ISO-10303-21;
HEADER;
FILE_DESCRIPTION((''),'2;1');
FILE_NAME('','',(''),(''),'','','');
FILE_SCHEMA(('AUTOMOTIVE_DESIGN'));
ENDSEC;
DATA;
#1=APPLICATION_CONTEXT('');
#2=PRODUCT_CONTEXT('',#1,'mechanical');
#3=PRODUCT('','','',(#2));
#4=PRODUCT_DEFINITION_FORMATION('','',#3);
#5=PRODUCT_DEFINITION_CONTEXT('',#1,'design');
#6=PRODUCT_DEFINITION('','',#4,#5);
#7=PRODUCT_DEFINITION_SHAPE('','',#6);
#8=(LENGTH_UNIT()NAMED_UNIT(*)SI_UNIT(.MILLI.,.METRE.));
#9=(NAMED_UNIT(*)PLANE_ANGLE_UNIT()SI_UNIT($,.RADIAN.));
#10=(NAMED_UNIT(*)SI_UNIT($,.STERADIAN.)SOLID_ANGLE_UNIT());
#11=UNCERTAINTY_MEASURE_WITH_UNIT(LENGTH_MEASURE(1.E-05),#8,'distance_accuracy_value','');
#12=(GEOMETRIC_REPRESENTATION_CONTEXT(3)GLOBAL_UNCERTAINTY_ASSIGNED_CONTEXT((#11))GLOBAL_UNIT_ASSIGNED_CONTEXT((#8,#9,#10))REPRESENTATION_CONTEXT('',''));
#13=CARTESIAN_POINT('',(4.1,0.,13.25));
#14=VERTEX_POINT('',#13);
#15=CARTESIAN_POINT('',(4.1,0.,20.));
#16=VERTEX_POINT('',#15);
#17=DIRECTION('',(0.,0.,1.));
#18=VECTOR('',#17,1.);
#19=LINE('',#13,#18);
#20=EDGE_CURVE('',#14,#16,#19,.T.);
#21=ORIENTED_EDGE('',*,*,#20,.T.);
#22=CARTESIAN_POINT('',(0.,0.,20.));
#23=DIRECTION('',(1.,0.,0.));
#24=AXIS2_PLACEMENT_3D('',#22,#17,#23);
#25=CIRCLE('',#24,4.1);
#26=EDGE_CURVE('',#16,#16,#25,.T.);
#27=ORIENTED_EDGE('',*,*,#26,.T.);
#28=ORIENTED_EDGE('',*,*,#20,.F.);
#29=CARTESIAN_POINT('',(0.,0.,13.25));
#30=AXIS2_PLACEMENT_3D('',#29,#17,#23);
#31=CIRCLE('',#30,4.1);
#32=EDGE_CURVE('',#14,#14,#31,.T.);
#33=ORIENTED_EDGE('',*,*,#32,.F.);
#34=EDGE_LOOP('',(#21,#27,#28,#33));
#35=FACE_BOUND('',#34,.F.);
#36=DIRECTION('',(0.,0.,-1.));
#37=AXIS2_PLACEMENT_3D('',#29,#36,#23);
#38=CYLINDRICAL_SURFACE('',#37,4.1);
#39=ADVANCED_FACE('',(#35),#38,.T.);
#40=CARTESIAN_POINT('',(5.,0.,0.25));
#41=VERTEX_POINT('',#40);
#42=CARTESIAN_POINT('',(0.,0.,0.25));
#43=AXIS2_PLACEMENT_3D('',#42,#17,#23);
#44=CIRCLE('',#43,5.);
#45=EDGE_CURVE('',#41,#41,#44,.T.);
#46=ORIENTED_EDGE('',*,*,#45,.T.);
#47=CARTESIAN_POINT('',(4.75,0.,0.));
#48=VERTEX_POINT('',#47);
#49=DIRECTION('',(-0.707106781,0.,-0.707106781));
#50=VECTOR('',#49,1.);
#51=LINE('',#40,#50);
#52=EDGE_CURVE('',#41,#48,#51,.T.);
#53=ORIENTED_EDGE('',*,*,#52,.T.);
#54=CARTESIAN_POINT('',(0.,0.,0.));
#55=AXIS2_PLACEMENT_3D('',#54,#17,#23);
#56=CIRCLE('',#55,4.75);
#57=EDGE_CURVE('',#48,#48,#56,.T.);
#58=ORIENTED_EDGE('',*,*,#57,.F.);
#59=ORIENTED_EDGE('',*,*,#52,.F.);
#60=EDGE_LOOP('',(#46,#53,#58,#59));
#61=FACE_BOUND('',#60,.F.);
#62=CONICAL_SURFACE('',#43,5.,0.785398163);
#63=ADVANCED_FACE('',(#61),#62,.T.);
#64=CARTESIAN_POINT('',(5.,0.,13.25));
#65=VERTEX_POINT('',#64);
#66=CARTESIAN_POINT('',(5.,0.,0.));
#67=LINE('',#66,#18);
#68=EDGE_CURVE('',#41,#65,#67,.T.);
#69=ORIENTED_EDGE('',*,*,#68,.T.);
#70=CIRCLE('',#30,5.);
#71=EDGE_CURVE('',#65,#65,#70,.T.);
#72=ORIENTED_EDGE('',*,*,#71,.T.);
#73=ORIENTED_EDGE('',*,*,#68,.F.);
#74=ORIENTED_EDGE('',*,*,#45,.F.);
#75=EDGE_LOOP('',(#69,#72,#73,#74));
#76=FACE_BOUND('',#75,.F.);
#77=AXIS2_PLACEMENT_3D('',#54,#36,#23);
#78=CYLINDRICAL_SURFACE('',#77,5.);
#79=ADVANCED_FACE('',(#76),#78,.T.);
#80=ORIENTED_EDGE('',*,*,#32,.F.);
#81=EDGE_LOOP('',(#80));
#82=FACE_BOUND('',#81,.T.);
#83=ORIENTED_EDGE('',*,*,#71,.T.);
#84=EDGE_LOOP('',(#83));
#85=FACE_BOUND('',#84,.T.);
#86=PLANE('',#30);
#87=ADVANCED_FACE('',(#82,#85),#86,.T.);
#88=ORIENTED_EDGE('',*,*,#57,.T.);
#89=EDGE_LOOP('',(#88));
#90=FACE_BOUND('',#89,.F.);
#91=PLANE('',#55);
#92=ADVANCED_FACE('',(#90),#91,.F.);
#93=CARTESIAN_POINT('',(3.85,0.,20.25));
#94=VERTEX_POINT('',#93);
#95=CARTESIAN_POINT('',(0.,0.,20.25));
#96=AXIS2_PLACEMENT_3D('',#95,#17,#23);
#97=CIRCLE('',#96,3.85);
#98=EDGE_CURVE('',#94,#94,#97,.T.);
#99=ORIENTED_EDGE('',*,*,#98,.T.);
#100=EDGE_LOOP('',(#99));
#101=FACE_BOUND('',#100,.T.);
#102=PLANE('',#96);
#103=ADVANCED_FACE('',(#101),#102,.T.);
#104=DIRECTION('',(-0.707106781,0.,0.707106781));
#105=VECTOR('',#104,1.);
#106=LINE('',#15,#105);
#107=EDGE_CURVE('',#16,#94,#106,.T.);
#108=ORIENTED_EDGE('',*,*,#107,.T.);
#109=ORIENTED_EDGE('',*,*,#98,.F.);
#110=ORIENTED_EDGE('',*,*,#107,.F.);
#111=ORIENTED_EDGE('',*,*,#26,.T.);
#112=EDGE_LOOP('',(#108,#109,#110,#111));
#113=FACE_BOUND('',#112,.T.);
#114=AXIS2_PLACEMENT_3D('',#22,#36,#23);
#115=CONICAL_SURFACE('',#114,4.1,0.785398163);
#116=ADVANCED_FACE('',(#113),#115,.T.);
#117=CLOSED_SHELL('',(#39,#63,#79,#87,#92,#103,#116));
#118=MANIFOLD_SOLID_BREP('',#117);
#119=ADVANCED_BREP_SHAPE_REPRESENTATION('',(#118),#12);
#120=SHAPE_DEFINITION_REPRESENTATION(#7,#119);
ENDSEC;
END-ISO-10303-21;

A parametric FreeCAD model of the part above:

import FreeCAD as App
import Part
import Sketcher

V = App.Vector
Q = App.Units.Quantity


def edges_at(feature, points):
    """Names of the edges that pass closest to the given points."""
    edges = feature.Shape.Edges
    near = lambda p: min(range(len(edges)), key=lambda i: edges[i].distToShape(Part.Vertex(*p))[0])
    return sorted({f"Edge{near(p) + 1}" for p in points})

doc = App.newDocument("Part")
body = doc.addObject("PartDesign::Body", "Body")

# Sketch on XY plane
sketch1 = body.newObject("Sketcher::SketchObject", "Sketch")
sketch1.AttachmentSupport = (doc.getObject("XY_Plane"), [""])
sketch1.MapMode = "FlatFace"
sketch1.addGeometry(Part.Circle(V(0, 0, 0), V(0, 0, 1), 5), False)
sketch1.addConstraint([
    Sketcher.Constraint("Coincident", 0, 3, -1, 1),
    Sketcher.Constraint("Diameter", 0, Q("10 mm")),
])
pad1 = body.newObject("PartDesign::Pad", "Pad")
pad1.Profile = sketch1
pad1.Length = 13.25

# Sketch on XY plane
sketch2 = body.newObject("Sketcher::SketchObject", "Sketch001")
sketch2.AttachmentSupport = (doc.getObject("XY_Plane"), [""])
sketch2.MapMode = "FlatFace"
sketch2.AttachmentOffset = App.Placement(V(0, 0, 13.25), App.Rotation())
sketch2.addGeometry(Part.Circle(V(0, 0, 0), V(0, 0, 1), 4.1), False)
sketch2.addConstraint([
    Sketcher.Constraint("Coincident", 0, 3, -1, 1),
    Sketcher.Constraint("Diameter", 0, Q("8.2 mm")),
])
pad2 = body.newObject("PartDesign::Pad", "Pad001")
pad2.Profile = sketch2
pad2.Length = 7
doc.recompute()

chamfer = body.newObject("PartDesign::Chamfer", "Chamfer")
chamfer.Base = (pad2, edges_at(pad2, [(-4.1, 0, 20.25)]))
chamfer.Size = 0.25
doc.recompute()

chamfer2 = body.newObject("PartDesign::Chamfer", "Chamfer001")
chamfer2.Base = (chamfer, edges_at(chamfer, [(-5, 0, 0)]))
chamfer2.Size = 0.25

doc.recompute()
